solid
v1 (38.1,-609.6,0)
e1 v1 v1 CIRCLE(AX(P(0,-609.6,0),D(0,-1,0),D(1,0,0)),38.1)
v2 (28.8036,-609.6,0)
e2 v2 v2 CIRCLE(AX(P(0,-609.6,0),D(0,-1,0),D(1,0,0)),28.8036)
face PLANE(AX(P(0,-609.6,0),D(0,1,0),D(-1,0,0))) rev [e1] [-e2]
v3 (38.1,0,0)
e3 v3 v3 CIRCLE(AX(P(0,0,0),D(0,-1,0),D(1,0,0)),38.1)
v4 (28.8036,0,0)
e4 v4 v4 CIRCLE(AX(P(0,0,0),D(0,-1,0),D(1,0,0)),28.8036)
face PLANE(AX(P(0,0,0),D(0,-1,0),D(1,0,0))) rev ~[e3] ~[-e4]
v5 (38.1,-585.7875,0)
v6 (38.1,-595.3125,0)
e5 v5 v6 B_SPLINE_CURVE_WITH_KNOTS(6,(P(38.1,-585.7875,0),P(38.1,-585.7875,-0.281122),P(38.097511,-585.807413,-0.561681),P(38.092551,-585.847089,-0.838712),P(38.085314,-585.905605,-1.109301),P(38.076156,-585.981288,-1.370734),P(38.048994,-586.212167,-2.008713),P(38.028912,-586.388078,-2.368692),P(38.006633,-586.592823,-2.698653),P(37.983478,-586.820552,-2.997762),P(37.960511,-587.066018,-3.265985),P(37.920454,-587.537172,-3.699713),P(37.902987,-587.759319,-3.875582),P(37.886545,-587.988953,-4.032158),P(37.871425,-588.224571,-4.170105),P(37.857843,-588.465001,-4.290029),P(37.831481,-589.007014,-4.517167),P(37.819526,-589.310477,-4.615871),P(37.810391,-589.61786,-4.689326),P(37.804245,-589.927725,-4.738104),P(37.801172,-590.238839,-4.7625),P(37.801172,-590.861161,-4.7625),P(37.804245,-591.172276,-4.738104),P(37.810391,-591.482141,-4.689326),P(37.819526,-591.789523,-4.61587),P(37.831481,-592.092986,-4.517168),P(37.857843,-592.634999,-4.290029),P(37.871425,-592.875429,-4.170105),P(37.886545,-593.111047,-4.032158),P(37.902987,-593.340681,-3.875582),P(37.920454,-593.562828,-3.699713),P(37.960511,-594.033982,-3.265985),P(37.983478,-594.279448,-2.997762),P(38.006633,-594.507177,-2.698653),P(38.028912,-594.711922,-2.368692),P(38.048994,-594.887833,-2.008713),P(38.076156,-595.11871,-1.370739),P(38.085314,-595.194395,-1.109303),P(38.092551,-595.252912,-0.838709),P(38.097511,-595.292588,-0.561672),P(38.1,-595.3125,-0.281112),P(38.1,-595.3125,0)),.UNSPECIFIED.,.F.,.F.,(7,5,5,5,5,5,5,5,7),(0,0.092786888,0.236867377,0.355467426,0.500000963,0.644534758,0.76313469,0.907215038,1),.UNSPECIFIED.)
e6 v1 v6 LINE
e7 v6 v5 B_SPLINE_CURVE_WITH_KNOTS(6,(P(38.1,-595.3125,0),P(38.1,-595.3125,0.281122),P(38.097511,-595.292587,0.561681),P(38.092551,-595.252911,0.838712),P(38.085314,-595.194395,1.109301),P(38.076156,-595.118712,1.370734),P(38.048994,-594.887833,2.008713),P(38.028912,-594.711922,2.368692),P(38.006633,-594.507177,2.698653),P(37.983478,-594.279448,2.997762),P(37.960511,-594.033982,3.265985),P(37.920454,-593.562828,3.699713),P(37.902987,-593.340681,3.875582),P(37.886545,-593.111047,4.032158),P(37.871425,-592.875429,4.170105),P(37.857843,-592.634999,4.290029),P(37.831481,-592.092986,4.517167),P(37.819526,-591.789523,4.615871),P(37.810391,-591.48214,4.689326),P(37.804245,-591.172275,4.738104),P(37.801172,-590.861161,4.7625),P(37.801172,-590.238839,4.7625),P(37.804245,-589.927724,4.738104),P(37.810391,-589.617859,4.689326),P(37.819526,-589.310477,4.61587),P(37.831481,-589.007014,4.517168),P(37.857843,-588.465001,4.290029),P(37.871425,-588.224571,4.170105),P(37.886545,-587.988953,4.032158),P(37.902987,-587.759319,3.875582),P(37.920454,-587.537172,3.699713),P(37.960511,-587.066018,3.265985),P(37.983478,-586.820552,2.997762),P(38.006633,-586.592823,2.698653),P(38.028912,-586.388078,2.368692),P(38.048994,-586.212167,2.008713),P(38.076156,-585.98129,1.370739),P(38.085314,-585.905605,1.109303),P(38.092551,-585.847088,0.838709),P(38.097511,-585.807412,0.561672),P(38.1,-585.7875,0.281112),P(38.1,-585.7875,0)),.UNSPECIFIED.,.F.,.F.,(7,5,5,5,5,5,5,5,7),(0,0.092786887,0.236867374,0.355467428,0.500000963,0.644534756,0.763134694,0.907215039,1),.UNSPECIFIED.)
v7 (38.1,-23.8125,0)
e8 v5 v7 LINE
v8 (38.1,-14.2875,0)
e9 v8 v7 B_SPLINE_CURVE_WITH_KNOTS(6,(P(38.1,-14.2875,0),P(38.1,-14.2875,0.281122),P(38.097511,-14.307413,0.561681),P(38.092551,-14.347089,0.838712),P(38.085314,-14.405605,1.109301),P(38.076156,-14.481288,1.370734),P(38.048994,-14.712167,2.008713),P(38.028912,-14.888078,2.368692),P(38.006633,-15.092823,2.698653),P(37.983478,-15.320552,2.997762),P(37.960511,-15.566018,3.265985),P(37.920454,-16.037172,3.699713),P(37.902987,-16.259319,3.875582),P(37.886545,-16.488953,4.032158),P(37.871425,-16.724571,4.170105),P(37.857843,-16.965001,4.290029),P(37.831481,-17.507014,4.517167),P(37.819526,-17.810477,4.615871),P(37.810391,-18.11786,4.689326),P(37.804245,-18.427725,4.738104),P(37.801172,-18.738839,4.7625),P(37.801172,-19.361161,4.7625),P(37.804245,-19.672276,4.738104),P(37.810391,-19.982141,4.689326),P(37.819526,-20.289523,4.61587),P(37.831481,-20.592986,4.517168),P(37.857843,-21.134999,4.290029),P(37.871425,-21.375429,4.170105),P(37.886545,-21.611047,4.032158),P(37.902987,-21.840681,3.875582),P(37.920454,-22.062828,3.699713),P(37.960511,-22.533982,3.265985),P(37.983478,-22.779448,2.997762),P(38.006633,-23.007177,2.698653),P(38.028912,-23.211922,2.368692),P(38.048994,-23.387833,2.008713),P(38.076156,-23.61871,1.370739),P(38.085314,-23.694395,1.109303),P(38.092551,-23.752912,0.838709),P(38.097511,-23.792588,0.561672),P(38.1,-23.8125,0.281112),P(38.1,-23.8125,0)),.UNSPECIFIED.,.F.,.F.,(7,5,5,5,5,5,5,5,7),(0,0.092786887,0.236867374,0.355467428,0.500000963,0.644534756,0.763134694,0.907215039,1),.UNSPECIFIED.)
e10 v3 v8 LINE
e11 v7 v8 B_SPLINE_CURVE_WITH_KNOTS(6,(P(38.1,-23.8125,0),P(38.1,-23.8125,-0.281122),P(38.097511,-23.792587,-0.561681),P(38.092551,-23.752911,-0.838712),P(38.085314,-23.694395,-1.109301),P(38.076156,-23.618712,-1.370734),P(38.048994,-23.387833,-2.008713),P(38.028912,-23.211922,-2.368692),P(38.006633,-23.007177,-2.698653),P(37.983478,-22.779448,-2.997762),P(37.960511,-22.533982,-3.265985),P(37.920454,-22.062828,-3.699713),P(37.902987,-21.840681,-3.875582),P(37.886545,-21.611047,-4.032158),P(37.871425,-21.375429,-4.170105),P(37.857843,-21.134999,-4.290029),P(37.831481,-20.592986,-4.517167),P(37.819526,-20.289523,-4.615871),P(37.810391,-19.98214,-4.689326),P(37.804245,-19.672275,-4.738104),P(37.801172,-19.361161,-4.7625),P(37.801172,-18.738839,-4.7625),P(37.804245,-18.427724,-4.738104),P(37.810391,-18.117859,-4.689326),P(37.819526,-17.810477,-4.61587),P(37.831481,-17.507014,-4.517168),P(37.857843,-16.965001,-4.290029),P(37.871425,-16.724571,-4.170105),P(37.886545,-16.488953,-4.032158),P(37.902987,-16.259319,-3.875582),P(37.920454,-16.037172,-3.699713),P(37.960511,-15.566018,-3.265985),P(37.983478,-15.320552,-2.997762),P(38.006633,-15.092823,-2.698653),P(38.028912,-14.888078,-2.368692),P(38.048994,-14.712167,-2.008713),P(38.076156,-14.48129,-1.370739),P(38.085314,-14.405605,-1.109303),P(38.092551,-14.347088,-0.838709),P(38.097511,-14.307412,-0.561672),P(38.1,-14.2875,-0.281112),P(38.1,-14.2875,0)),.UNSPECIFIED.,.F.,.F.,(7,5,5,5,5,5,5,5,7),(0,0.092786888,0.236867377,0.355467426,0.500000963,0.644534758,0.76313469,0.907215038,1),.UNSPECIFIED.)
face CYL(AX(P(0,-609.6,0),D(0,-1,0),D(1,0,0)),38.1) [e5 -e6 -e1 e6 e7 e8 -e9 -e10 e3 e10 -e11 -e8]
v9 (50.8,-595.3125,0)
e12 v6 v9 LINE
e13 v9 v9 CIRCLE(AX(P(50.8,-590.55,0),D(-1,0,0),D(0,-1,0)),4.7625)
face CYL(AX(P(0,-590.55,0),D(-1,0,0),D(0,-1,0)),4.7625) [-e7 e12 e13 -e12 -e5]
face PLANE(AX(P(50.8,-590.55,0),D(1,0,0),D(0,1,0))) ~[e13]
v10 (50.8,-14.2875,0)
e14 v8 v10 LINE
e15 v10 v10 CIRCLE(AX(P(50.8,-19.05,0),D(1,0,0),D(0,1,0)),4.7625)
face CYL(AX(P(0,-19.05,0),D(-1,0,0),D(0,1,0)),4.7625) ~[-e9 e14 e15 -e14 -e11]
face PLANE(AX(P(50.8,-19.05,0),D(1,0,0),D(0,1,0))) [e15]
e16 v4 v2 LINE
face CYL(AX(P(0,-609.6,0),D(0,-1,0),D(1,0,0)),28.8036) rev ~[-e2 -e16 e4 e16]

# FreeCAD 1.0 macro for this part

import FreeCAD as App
import Part
import Sketcher
Q = App.Units.Quantity

doc = App.newDocument("Part")
body = doc.addObject("PartDesign::Body", "Body")

sketch1 = body.newObject("Sketcher::SketchObject", "Sketch")
sketch1.AttachmentSupport = (doc.getObject("YZ_Plane"), [""])
sketch1.MapMode = "FlatFace"
sketch1.addGeometry(Part.Circle(App.Vector(-19.05, 0, 0), App.Vector(0, 0, 1), 4.7625), False)
sketch1.addConstraint([
    Sketcher.Constraint("PointOnObject", 0, 3, -1),
    Sketcher.Constraint("Diameter", 0, Q("0.375 in")),
    Sketcher.Constraint("DistanceX", 0, 3, -1, 1, Q("0.75 in")),
])
pad1 = body.newObject("PartDesign::Pad", "Pad")
pad1.Profile = sketch1
pad1.Length = Q("2 in")

sketch2 = body.newObject("Sketcher::SketchObject", "Sketch001")
sketch2.AttachmentSupport = (doc.getObject("XZ_Plane"), [""])
sketch2.MapMode = "FlatFace"
sketch2.addGeometry(Part.Circle(App.Vector(0, 0, 0), App.Vector(0, 0, 1), 38.1), False)
sketch2.addConstraint([
    Sketcher.Constraint("Coincident", 0, 3, -1, 1),
    Sketcher.Constraint("Diameter", 0, Q("3 in")),
])
pad2 = body.newObject("PartDesign::Pad", "Pad001")
pad2.Profile = sketch2
pad2.Length = Q("12 in")

sketch3 = body.newObject("Sketcher::SketchObject", "Sketch002")
sketch3.AttachmentSupport = (doc.getObject("XZ_Plane"), [""])
sketch3.MapMode = "FlatFace"
sketch3.addGeometry(Part.Circle(App.Vector(0, 0, 0), App.Vector(0, 0, 1), 28.8036), False)
sketch3.addConstraint([
    Sketcher.Constraint("Coincident", 0, 3, -1, 1),
    Sketcher.Constraint("Diameter", 0, Q("2.268 in")),
])
pocket1 = body.newObject("PartDesign::Pocket", "Pocket")
pocket1.Profile = sketch3
pocket1.Length = Q("12 in")
pocket1.Reversed = True
body2 = doc.addObject("PartDesign::Body", "Body001")
doc.recompute()

body2.BaseFeature = body
doc.recompute()

mirroring = doc.addObject("Part::Mirroring", "Mirroring")
mirroring.Source = body
mirroring.Base = App.Vector(0, -304.8, 0)
mirroring.Normal = App.Vector(0, -1, 0)
body3 = doc.addObject("PartDesign::Body", "Body002")
body3.BaseFeature = mirroring
boolean = body2.newObject("PartDesign::Boolean", "Boolean")
boolean.Type = "Fuse"
boolean.addObjects([body3])
doc.recompute()
mirroring.Visibility = False

doc.recompute()
